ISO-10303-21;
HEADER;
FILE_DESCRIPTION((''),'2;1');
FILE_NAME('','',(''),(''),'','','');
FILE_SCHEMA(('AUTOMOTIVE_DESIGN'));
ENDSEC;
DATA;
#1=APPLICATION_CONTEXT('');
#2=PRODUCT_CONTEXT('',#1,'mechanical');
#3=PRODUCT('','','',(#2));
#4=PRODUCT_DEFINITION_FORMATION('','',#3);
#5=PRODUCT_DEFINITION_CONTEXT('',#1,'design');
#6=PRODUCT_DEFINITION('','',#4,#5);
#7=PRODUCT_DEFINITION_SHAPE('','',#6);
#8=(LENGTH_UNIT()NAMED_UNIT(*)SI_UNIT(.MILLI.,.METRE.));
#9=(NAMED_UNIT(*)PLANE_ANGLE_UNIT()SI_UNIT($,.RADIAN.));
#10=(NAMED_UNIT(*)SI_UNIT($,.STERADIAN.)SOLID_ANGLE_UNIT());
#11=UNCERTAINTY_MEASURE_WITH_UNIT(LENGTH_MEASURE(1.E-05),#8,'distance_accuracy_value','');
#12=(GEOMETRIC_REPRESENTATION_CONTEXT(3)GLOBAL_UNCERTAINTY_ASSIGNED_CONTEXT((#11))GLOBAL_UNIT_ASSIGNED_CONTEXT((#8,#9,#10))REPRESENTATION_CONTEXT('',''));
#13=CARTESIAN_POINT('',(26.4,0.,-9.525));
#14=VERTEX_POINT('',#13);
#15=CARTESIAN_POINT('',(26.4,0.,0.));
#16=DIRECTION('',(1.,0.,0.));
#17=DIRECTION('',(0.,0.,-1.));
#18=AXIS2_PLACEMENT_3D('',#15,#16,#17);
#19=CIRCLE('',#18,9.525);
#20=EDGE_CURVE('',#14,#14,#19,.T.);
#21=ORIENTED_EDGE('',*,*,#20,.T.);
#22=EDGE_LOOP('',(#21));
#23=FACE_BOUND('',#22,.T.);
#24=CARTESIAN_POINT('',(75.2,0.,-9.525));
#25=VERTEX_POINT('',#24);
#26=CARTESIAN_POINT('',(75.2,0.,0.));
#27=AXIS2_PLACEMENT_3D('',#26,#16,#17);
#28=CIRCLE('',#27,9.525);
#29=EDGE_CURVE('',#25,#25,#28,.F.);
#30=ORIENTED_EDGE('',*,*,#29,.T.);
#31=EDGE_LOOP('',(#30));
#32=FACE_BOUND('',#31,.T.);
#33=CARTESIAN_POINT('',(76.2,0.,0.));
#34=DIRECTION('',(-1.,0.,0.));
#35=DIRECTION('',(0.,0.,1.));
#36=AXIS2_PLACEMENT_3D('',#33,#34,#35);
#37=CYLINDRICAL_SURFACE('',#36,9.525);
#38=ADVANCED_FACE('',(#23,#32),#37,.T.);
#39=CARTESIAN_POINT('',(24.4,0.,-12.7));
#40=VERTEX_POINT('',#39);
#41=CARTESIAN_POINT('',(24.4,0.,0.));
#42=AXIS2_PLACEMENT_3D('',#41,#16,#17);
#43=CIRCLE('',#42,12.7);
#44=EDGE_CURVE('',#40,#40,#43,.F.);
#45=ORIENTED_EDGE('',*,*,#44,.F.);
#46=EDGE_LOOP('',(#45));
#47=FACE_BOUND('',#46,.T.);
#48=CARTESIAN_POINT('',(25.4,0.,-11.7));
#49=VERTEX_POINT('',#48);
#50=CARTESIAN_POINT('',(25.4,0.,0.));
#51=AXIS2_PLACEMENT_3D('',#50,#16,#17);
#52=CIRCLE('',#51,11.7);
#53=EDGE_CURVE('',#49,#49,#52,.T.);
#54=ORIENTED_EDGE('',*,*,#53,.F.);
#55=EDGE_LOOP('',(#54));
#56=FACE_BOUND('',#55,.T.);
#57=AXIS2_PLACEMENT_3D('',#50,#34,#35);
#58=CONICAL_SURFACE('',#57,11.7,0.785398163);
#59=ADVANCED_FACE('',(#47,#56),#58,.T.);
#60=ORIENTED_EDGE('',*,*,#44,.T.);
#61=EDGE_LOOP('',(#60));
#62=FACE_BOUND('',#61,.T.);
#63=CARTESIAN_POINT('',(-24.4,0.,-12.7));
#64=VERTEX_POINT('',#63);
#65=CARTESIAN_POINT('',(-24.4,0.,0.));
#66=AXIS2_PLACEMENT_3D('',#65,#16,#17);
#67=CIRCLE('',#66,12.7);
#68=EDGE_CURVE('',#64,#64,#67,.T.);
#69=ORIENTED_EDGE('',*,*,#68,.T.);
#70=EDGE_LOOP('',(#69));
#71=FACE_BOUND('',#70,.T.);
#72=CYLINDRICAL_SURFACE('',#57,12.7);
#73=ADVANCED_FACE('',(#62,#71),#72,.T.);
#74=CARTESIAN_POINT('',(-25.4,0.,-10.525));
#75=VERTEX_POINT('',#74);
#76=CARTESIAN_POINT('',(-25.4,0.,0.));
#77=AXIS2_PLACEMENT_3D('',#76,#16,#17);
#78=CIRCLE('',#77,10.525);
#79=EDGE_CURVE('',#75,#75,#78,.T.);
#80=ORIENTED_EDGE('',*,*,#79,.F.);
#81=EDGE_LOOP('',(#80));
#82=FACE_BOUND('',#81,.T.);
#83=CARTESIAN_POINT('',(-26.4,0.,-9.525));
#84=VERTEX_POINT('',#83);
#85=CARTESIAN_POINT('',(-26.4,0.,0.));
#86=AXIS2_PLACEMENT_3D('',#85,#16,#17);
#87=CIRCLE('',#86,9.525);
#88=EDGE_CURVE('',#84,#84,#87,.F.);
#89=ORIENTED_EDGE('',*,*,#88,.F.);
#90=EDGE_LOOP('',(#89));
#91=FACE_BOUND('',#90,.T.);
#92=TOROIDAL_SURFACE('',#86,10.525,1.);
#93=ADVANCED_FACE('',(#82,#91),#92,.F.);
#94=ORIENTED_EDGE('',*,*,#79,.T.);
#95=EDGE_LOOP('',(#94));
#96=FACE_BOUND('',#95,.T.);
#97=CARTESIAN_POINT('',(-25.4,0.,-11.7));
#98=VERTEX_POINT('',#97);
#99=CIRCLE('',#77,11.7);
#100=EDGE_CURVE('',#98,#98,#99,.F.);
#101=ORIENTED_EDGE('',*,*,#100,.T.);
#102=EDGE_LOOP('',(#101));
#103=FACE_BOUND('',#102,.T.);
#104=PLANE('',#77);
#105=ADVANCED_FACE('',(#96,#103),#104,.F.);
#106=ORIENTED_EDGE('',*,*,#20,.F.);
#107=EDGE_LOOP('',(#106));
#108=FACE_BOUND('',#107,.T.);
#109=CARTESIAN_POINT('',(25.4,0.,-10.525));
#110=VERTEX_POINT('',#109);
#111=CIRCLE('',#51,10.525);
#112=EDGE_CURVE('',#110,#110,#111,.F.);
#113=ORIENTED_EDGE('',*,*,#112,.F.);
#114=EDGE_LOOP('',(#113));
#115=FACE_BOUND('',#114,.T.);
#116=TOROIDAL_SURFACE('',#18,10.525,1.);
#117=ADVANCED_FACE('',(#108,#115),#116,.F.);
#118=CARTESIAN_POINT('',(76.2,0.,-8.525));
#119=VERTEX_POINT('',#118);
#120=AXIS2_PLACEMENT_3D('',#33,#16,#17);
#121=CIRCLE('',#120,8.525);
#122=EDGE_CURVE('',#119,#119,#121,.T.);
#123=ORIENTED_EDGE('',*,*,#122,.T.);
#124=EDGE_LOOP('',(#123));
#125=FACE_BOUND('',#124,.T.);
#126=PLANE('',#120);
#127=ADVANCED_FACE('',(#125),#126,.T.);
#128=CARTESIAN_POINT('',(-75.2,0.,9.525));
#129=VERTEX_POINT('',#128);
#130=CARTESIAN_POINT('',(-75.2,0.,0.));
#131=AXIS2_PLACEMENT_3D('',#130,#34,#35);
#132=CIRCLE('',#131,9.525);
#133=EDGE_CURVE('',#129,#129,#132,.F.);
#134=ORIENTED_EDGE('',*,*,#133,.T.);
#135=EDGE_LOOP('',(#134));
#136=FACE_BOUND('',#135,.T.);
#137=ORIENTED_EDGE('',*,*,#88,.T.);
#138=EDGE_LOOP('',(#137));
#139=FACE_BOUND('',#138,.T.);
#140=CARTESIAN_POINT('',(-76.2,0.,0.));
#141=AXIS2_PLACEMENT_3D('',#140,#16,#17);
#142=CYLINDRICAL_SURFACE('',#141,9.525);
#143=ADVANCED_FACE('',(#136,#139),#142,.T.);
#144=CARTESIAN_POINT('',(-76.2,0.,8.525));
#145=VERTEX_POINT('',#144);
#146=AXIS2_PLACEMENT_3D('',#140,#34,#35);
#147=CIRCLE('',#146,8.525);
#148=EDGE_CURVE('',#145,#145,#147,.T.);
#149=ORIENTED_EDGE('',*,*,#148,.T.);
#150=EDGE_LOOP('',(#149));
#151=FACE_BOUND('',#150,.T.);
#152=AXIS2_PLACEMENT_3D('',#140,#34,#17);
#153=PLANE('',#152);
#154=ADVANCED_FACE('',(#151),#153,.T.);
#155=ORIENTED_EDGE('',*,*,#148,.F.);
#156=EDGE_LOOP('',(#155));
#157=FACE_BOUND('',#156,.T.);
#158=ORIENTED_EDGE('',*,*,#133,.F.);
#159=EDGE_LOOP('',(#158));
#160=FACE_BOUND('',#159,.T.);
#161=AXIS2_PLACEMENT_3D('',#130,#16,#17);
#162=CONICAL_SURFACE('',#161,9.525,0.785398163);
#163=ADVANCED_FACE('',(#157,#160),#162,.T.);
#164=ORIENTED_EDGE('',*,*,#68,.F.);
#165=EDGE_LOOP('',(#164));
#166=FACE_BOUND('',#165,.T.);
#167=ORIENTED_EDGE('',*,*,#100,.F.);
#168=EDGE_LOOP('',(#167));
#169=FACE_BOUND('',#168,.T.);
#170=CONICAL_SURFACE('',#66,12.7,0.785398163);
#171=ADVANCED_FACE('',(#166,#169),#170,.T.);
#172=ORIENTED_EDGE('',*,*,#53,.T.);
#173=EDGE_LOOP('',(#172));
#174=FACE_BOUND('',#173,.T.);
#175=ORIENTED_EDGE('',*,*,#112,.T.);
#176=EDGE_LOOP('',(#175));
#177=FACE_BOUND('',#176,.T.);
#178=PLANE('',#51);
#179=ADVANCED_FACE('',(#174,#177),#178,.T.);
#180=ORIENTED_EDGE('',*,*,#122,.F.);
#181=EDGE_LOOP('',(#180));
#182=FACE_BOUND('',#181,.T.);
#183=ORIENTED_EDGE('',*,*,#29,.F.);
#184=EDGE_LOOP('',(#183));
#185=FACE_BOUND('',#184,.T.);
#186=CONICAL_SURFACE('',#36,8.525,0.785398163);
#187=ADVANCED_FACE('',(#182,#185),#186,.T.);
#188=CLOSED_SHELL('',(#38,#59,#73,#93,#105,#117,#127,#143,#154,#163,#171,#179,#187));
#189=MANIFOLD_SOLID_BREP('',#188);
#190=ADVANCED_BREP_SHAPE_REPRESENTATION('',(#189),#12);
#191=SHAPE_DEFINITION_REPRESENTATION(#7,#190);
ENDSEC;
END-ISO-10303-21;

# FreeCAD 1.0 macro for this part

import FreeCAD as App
import Part
import Sketcher
from FreeCAD import Vector
Q = App.Units.Quantity


def edges_at(feature, points):
    """Names of the edges that pass closest to the given points."""
    edges = feature.Shape.Edges
    near = lambda p: min(range(len(edges)), key=lambda i: edges[i].distToShape(Part.Vertex(*p))[0])
    return sorted({f"Edge{near(p) + 1}" for p in points})

doc = App.newDocument("Part")
body = doc.addObject("PartDesign::Body", "Body")

# Sketch on YZ plane
sketch1 = body.newObject("Sketcher::SketchObject", "Sketch")
sketch1.AttachmentSupport = (doc.getObject("YZ_Plane"), [""])
sketch1.MapMode = "FlatFace"
sketch1.addGeometry(Part.Circle(Vector(0, 0, 0), Vector(0, 0, 1), 13), False)
sketch1.addConstraint(Sketcher.Constraint("Coincident", 0, 3, -1, 1))
sketch1.addConstraint(Sketcher.Constraint("Diameter", 0, Q("1 in")))
pad1 = body.newObject("PartDesign::Pad", "Pad")
pad1.Profile = sketch1
pad1.Length = Q("2 in")
pad1.Midplane = True

# Sketch on YZ plane
sketch2 = body.newObject("Sketcher::SketchObject", "Sketch001")
sketch2.AttachmentSupport = (doc.getObject("YZ_Plane"), [""])
sketch2.MapMode = "FlatFace"
sketch2.AttachmentOffset = App.Placement(Vector(0, 0, 1 * 25.4), App.Rotation())
sketch2.addGeometry(Part.Circle(Vector(0, 0, 0), Vector(0, 0, 1), 10), False)
sketch2.addConstraint(Sketcher.Constraint("Coincident", 0, 3, -1, 1))
sketch2.addConstraint(Sketcher.Constraint("Diameter", 0, Q("0.75 in")))
pad2 = body.newObject("PartDesign::Pad", "Pad001")
pad2.Profile = sketch2
pad2.Length = Q("2 in")
doc.recompute()

fillet = body.newObject("PartDesign::Fillet", "Fillet")
fillet.Base = (pad2, edges_at(pad2, [(25.4, 0, 9.525)]))
fillet.Radius = 1
doc.recompute()

mirrored = body.newObject("PartDesign::Mirrored", "Mirrored")
mirrored.Originals = [pad2]
mirrored.MirrorPlane = (doc.getObject("YZ_Plane"), [""])
body.Tip = mirrored
doc.recompute()

fillet2 = body.newObject("PartDesign::Fillet", "Fillet001")
fillet2.Base = (mirrored, edges_at(mirrored, [(-25.4, 0, 9.525)]))
fillet2.Radius = 1
doc.recompute()

chamfer = body.newObject("PartDesign::Chamfer", "Chamfer")
chamfer.Base = (fillet2, edges_at(fillet2, [(-76.2, 0, 9.525), (76.2, 0, 9.525)]))
chamfer.Size = 1
doc.recompute()

chamfer2 = body.newObject("PartDesign::Chamfer", "Chamfer001")
chamfer2.Base = (chamfer, edges_at(chamfer, [(-25.4, 0, 12.7), (25.4, 0, 12.7)]))
chamfer2.Size = 1

doc.recompute()
